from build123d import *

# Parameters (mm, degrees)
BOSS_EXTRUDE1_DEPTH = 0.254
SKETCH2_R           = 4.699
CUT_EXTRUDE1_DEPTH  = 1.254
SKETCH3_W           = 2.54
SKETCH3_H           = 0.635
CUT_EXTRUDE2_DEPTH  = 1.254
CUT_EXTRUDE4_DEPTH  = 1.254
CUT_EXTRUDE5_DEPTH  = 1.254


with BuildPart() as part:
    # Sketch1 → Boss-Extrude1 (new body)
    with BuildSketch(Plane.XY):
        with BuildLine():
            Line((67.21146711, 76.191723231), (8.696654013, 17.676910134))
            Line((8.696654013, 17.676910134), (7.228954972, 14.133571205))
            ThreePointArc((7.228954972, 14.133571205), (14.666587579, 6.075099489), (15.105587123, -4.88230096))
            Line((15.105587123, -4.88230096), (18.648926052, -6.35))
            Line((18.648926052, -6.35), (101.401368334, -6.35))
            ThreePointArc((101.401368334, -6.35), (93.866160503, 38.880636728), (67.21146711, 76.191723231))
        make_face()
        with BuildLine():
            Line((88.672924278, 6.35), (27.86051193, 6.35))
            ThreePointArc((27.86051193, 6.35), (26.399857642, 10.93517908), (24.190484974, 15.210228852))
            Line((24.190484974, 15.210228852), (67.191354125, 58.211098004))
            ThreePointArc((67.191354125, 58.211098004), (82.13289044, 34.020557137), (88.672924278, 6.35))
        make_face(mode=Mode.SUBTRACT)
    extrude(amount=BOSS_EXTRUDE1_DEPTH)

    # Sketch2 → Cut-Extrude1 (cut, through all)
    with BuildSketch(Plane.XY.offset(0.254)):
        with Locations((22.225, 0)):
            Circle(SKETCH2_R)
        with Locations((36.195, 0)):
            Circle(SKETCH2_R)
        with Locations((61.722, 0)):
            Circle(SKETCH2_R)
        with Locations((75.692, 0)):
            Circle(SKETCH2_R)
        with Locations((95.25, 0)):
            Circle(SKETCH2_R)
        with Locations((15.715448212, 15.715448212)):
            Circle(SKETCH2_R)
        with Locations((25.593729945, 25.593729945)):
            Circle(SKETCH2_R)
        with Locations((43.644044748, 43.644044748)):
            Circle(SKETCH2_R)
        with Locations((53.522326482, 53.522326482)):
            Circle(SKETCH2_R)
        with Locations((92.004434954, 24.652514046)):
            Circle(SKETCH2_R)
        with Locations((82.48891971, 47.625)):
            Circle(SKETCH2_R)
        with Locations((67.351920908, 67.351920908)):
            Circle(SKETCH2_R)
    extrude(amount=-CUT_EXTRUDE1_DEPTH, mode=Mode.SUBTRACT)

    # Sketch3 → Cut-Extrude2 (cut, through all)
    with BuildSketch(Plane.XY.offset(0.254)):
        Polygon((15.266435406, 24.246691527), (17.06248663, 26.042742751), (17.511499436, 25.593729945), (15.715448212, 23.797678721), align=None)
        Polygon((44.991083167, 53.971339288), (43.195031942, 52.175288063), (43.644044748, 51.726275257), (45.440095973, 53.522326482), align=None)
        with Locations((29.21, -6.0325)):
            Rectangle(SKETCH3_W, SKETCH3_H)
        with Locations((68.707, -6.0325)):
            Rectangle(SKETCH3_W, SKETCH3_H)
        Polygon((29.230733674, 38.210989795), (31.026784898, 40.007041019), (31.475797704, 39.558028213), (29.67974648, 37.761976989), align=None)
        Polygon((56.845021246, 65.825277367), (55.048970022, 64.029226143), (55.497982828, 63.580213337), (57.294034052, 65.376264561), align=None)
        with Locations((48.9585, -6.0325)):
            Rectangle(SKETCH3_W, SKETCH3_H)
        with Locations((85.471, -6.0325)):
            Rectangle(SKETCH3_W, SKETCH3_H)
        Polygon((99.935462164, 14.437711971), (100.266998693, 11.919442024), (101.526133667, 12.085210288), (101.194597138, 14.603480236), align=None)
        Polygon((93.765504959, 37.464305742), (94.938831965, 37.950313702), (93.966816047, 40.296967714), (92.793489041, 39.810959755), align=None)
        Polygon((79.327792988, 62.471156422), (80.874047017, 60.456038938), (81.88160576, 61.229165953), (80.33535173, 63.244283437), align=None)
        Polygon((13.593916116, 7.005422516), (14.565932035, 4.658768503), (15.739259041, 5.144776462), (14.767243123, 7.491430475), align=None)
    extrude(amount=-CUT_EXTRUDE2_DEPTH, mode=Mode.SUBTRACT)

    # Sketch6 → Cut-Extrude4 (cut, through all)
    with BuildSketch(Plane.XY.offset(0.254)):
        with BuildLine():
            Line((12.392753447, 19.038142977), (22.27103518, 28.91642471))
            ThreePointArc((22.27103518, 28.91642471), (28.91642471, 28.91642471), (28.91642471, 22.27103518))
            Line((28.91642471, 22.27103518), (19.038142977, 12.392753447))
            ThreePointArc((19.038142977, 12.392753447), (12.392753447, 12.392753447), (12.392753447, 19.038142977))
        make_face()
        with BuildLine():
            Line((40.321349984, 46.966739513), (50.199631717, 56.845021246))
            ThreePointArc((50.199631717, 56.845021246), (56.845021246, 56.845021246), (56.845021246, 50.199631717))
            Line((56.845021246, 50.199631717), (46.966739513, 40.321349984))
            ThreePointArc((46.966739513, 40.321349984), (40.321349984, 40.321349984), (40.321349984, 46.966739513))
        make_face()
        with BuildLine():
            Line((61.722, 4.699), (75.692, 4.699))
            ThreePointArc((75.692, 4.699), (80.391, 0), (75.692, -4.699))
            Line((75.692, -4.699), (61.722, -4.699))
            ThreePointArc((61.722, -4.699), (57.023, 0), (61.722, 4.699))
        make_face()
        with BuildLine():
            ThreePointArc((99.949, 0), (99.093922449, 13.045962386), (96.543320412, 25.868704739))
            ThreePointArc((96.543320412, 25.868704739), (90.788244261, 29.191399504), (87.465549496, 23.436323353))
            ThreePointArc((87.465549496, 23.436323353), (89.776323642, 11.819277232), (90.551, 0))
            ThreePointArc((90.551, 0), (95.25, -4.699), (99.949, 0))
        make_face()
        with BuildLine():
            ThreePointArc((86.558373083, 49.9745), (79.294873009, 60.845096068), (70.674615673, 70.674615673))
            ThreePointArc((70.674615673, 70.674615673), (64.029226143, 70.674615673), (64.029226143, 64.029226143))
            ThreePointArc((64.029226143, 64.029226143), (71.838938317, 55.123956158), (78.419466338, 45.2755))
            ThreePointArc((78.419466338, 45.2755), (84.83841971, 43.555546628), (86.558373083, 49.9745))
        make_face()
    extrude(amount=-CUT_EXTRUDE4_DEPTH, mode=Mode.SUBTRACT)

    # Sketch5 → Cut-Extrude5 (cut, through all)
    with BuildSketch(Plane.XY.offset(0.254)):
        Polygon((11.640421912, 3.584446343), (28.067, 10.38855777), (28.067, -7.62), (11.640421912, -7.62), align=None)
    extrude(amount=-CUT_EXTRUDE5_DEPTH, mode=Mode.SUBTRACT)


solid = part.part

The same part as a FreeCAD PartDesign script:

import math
import FreeCAD as App
import Part
import Sketcher

V = App.Vector
Q = App.Units.Quantity


def add_polygon(sketch, points):
    """Adds a closed chain of lines whose ends are joined by coincident constraints."""
    first, n = sketch.GeometryCount, len(points)
    for a, b in zip(points, points[1:] + points[:1]):
        sketch.addGeometry(Part.LineSegment(App.Vector(*a, 0), App.Vector(*b, 0)), False)
    for i in range(n):
        sketch.addConstraint(Sketcher.Constraint("Coincident", first + i, 2, first + (i + 1) % n, 1))

doc = App.newDocument("Part")
body = doc.addObject("PartDesign::Body", "Body")

sketch1 = body.newObject("Sketcher::SketchObject", "Sketch")
sketch1.AttachmentSupport = (doc.getObject("XY_Plane"), [""])
sketch1.MapMode = "FlatFace"
sketch1.addGeometry([
    Part.LineSegment(V(67.2, 76.2, 0), V(8.7, 17.7, 0)),
    Part.LineSegment(V(8.7, 17.7, 0), V(7.2, 14.1, 0)),
    Part.ArcOfCircle(Part.Circle(V(0, 0, 0), V(0, 0, 1), 15.9), math.radians(-18), math.radians(63)),
    Part.LineSegment(V(15.1, -4.9, 0), V(18.6, -6.3, 0)),
    Part.LineSegment(V(18.6, -6.3, 0), V(101.4, -6.3, 0)),
    Part.ArcOfCircle(Part.Circle(V(0, 0, 0), V(0, 0, 1), 101.6), math.radians(-4), math.radians(49)),
    Part.ArcOfCircle(Part.Circle(V(0, 0, 0), V(0, 0, 1), 88.9), math.radians(4), math.radians(41)),
    Part.LineSegment(V(88.7, 6.3, 0), V(27.9, 6.3, 0)),
    Part.ArcOfCircle(Part.Circle(V(0, 0, 0), V(0, 0, 1), 28.6), math.radians(12.84), math.radians(32.16)),
    Part.LineSegment(V(24.2, 15.2, 0), V(67.2, 58.2, 0)),
], False)
sketch1.addConstraint([
    Sketcher.Constraint("Coincident", 0, 2, 1, 1),
    Sketcher.Constraint("Coincident", 1, 2, 2, 2),
    Sketcher.Constraint("Coincident", 2, 1, 3, 1),
    Sketcher.Constraint("Coincident", 3, 2, 4, 1),
    Sketcher.Constraint("Coincident", 4, 2, 5, 1),
    Sketcher.Constraint("Coincident", 5, 2, 0, 1),
    Sketcher.Constraint("Coincident", 6, 1, 7, 1),
    Sketcher.Constraint("Coincident", 7, 2, 8, 1),
    Sketcher.Constraint("Coincident", 8, 2, 9, 1),
    Sketcher.Constraint("Coincident", 9, 2, 6, 2),
    Sketcher.Constraint("Horizontal", 4),
    Sketcher.Constraint("Horizontal", 7),
    Sketcher.Constraint("Coincident", 2, 3, -1, 1),
    Sketcher.Constraint("Coincident", 5, 3, -1, 1),
    Sketcher.Constraint("Coincident", 6, 3, -1, 1),
    Sketcher.Constraint("Coincident", 8, 3, -1, 1),
    Sketcher.Constraint("Perpendicular", 1, 3),
    Sketcher.Constraint("Parallel", 0, 9),
    Sketcher.Constraint("Equal", 1, 3),
    Sketcher.Constraint("Radius", 5, Q("4 in")),
    Sketcher.Constraint("Radius", 6, Q("3.5 in")),
    Sketcher.Constraint("Angle", 0, Q("-135 deg")),
    Sketcher.Constraint("Radius", 2, Q("0.625 in")),
    Sketcher.Constraint("Radius", 8, Q("1.125 in")),
    Sketcher.Constraint("Angle", 1, Q("-112.5 deg")),
    Sketcher.Constraint("DistanceY", 4, 2, 6, 1, Q("0.5 in")),
    Sketcher.Constraint("DistanceY", 3, 2, -1, 1, Q("0.25 in")),
    Sketcher.Constraint("DistanceY", 2, 1, -1, 1, 4.882301),
    Sketcher.Constraint("DistanceY", -1, 1, 9, 2, 58.211098),
    Sketcher.Constraint("DistanceX", 5, 2, 4, 2, 34.189901),
])
pad1 = body.newObject("PartDesign::Pad", "Pad")
pad1.Profile = sketch1
pad1.Length = Q("0.01 in")

sketch2 = body.newObject("Sketcher::SketchObject", "Sketch001")
sketch2.AttachmentSupport = (doc.getObject("XY_Plane"), [""])
sketch2.MapMode = "FlatFace"
sketch2.AttachmentOffset = App.Placement(V(0, 0, 0.01 * 25.4), App.Rotation())
sketch2.addGeometry([
    Part.Circle(V(22.2, 0, 0), V(0, 0, 1), 4.7),
    Part.Circle(V(36.2, 0, 0), V(0, 0, 1), 4.7),
    Part.Circle(V(61.7, 0, 0), V(0, 0, 1), 4.7),
    Part.Circle(V(75.7, 0, 0), V(0, 0, 1), 4.7),
    Part.Circle(V(95.2, 0, 0), V(0, 0, 1), 4.7),
    Part.Circle(V(15.7, 15.7, 0), V(0, 0, 1), 4.7),
    Part.Circle(V(25.6, 25.6, 0), V(0, 0, 1), 4.7),
    Part.Circle(V(43.6, 43.6, 0), V(0, 0, 1), 4.7),
    Part.Circle(V(53.5, 53.5, 0), V(0, 0, 1), 4.7),
    Part.Circle(V(92, 24.7, 0), V(0, 0, 1), 4.7),
    Part.Circle(V(82.5, 47.6, 0), V(0, 0, 1), 4.7),
    Part.Circle(V(67.4, 67.4, 0), V(0, 0, 1), 4.7),
], False)
sketch2.addConstraint([
    Sketcher.Constraint("Equal", 0, 1),
    Sketcher.Constraint("Equal", 1, 2),
    Sketcher.Constraint("Equal", 2, 3),
    Sketcher.Constraint("Equal", 3, 4),
    Sketcher.Constraint("Equal", 4, 5),
    Sketcher.Constraint("Equal", 5, 6),
    Sketcher.Constraint("Equal", 6, 7),
    Sketcher.Constraint("Equal", 7, 8),
    Sketcher.Constraint("Equal", 8, 9),
    Sketcher.Constraint("Equal", 9, 10),
    Sketcher.Constraint("Equal", 10, 11),
    Sketcher.Constraint("PointOnObject", 0, 3, -1),
    Sketcher.Constraint("PointOnObject", 1, 3, -1),
    Sketcher.Constraint("PointOnObject", 2, 3, -1),
    Sketcher.Constraint("PointOnObject", 3, 3, -1),
    Sketcher.Constraint("PointOnObject", 4, 3, -1),
    Sketcher.Constraint("Diameter", 0, Q("0.37 in")),
    Sketcher.Constraint("DistanceX", -1, 1, 2, 3, Q("2.43 in")),
    Sketcher.Constraint("DistanceX", -1, 1, 3, 3, Q("2.98 in")),
    Sketcher.Constraint("DistanceX", -1, 1, 4, 3, Q("3.75 in")),
    Sketcher.Constraint("DistanceX", 0, 3, 1, 3, Q("0.55 in")),
    Sketcher.Constraint("DistanceX", -1, 1, 0, 3, Q("0.875 in")),
    Sketcher.Constraint("DistanceY", -1, 1, 10, 3, Q("1.875 in")),
    Sketcher.Constraint("DistanceX", 11, 3, 10, 3, 15.136999),
    Sketcher.Constraint("DistanceX", -1, 1, 5, 3, 15.715448),
    Sketcher.Constraint("DistanceY", -1, 1, 5, 3, 15.715448),
    Sketcher.Constraint("DistanceX", -1, 1, 6, 3, 25.59373),
    Sketcher.Constraint("DistanceY", -1, 1, 6, 3, 25.59373),
    Sketcher.Constraint("DistanceX", -1, 1, 10, 3, 82.48892),
    Sketcher.Constraint("DistanceY", -1, 1, 11, 3, 67.351921),
    Sketcher.Constraint("DistanceX", 7, 3, 8, 3, 9.878282),
    Sketcher.Constraint("DistanceY", 7, 3, 8, 3, 9.878282),
    Sketcher.Constraint("DistanceX", 5, 3, 8, 3, 37.806878),
    Sketcher.Constraint("DistanceY", 5, 3, 8, 3, 37.806878),
    Sketcher.Constraint("DistanceX", 8, 3, 9, 3, 38.482108),
    Sketcher.Constraint("DistanceY", 9, 3, 7, 3, 18.991531),
])
pocket1 = body.newObject("PartDesign::Pocket", "Pocket")
pocket1.Profile = sketch2
pocket1.Type = "ThroughAll"

sketch3 = body.newObject("Sketcher::SketchObject", "Sketch002")
sketch3.AttachmentSupport = (doc.getObject("XY_Plane"), [""])
sketch3.MapMode = "FlatFace"
sketch3.AttachmentOffset = App.Placement(V(0, 0, 0.01 * 25.4), App.Rotation())
add_polygon(sketch3, [(17.1, 26), (15.3, 24.2), (15.7, 23.8), (17.5, 25.6)])
add_polygon(sketch3, [(45, 54), (43.2, 52.2), (43.6, 51.7), (45.4, 53.5)])
add_polygon(sketch3, [(27.9, -5.7), (27.9, -6.3), (30.5, -6.3), (30.5, -5.7)])
add_polygon(sketch3, [(67.4, -5.7), (67.4, -6.3), (70, -6.3), (70, -5.7)])
add_polygon(sketch3, [(31, 40), (29.2, 38.2), (29.7, 37.8), (31.5, 39.6)])
add_polygon(sketch3, [(56.8, 65.8), (55, 64), (55.5, 63.6), (57.3, 65.4)])
add_polygon(sketch3, [(47.7, -5.7), (47.7, -6.3), (50.2, -6.3), (50.2, -5.7)])
add_polygon(sketch3, [(84.2, -5.7), (84.2, -6.3), (86.7, -6.3), (86.7, -5.7)])
add_polygon(sketch3, [(99.9, 14.4), (100.3, 11.9), (101.5, 12.1), (101.2, 14.6)])
add_polygon(sketch3, [(93.8, 37.5), (94.9, 38), (94, 40.3), (92.8, 39.8)])
add_polygon(sketch3, [(79.3, 62.5), (80.9, 60.5), (81.9, 61.2), (80.3, 63.2)])
add_polygon(sketch3, [(13.6, 7), (14.6, 4.7), (15.7, 5.1), (14.8, 7.5)])
sketch3.addConstraint([
    Sketcher.Constraint("Vertical", 8),
    Sketcher.Constraint("Horizontal", 9),
    Sketcher.Constraint("Vertical", 10),
    Sketcher.Constraint("Horizontal", 11),
    Sketcher.Constraint("Vertical", 12),
    Sketcher.Constraint("Horizontal", 13),
    Sketcher.Constraint("Vertical", 14),
    Sketcher.Constraint("Horizontal", 15),
    Sketcher.Constraint("Vertical", 24),
    Sketcher.Constraint("Horizontal", 25),
    Sketcher.Constraint("Vertical", 26),
    Sketcher.Constraint("Horizontal", 27),
    Sketcher.Constraint("Vertical", 28),
    Sketcher.Constraint("Horizontal", 29),
    Sketcher.Constraint("Vertical", 30),
    Sketcher.Constraint("Horizontal", 31),
    Sketcher.Constraint("Perpendicular", 0, 1),
    Sketcher.Constraint("Perpendicular", 1, 2),
    Sketcher.Constraint("Perpendicular", 2, 3),
    Sketcher.Constraint("Perpendicular", 3, 4),
    Sketcher.Constraint("Perpendicular", 4, 5),
    Sketcher.Constraint("Perpendicular", 5, 6),
    Sketcher.Constraint("Perpendicular", 6, 7),
    Sketcher.Constraint("Perpendicular", 7, 16),
    Sketcher.Constraint("Perpendicular", 16, 17),
    Sketcher.Constraint("Perpendicular", 17, 18),
    Sketcher.Constraint("Perpendicular", 18, 19),
    Sketcher.Constraint("Perpendicular", 19, 20),
    Sketcher.Constraint("Perpendicular", 20, 21),
    Sketcher.Constraint("Perpendicular", 21, 22),
    Sketcher.Constraint("Perpendicular", 22, 23),
    Sketcher.Constraint("Perpendicular", 32, 33),
    Sketcher.Constraint("Perpendicular", 33, 34),
    Sketcher.Constraint("Perpendicular", 34, 35),
    Sketcher.Constraint("Perpendicular", 36, 37),
    Sketcher.Constraint("Perpendicular", 37, 38),
    Sketcher.Constraint("Perpendicular", 38, 39),
    Sketcher.Constraint("Perpendicular", 40, 41),
    Sketcher.Constraint("Perpendicular", 41, 42),
    Sketcher.Constraint("Perpendicular", 42, 43),
    Sketcher.Constraint("Parallel", 39, 44),
    Sketcher.Constraint("Perpendicular", 44, 45),
    Sketcher.Constraint("Perpendicular", 45, 46),
    Sketcher.Constraint("Perpendicular", 46, 47),
    Sketcher.Constraint("Horizontal", 9, 2, 12, 2),
    Sketcher.Constraint("Horizontal", 11, 2, 14, 2),
    Sketcher.Constraint("Horizontal", 13, 2, 24, 2),
    Sketcher.Constraint("Horizontal", 15, 2, 26, 2),
    Sketcher.Constraint("Horizontal", 25, 2, 28, 2),
    Sketcher.Constraint("Horizontal", 27, 2, 30, 2),
    Sketcher.Constraint("Equal", 11, 13),
    Sketcher.Constraint("Equal", 15, 25),
    Sketcher.Constraint("Equal", 27, 29),
    Sketcher.Constraint("Equal", 2, 4),
    Sketcher.Constraint("Equal", 3, 5),
    Sketcher.Constraint("Equal", 6, 16),
    Sketcher.Constraint("Equal", 7, 17),
    Sketcher.Constraint("Equal", 18, 20),
    Sketcher.Constraint("Equal", 19, 21),
    Sketcher.Constraint("Equal", 22, 32),
    Sketcher.Constraint("Equal", 35, 36),
    Sketcher.Constraint("Equal", 34, 37),
    Sketcher.Constraint("Equal", 39, 40),
    Sketcher.Constraint("Equal", 38, 41),
    Sketcher.Constraint("Equal", 42, 44),
    Sketcher.Constraint("Equal", 43, 45),
    Sketcher.Constraint("DistanceX", 9, 1, 9, 2, Q("0.1 in")),
    Sketcher.Constraint("Angle", 0, Q("-135 deg")),
    Sketcher.Constraint("Distance", 0, Q("0.1 in")),
    Sketcher.Constraint("DistanceX", -1, 1, 8, 2, Q("1.1 in")),
    Sketcher.Constraint("Angle", 32, Q("-82.5 deg")),
    Sketcher.Constraint("Angle", 36, Q("22.5 deg")),
    Sketcher.Constraint("Angle", 40, Q("-52.5 deg")),
    Sketcher.Constraint("Distance", 33, Q("0.05 in")),
    Sketcher.Constraint("DistanceY", 8, 2, 8, 1, Q("0.025 in")),
    Sketcher.Constraint("DistanceY", 8, 2, -1, 1, Q("0.25 in")),
    Sketcher.Constraint("DistanceX", 13, 2, 28, 2, Q("0.56 in")),
    Sketcher.Constraint("Distance", 1, Q("0.025 in")),
    Sketcher.Constraint("DistanceX", -1, 1, 12, 2, Q("2.655 in")),
    Sketcher.Constraint("DistanceX", -1, 1, 24, 2, Q("1.8775 in")),
    Sketcher.Constraint("DistanceX", -1, 1, 2, 2, 17.511499),
    Sketcher.Constraint("DistanceX", -1, 1, 32, 2, 100.266999),
    Sketcher.Constraint("DistanceX", 16, 2, 4, 2, 13.964298),
    Sketcher.Constraint("DistanceY", 16, 2, 4, 2, 13.964298),
    Sketcher.Constraint("DistanceX", 0, 2, 16, 2, 13.964298),
    Sketcher.Constraint("DistanceY", 0, 2, 16, 2, 13.964298),
    Sketcher.Constraint("DistanceY", 6, 2, 20, 2, 10.5069),
    Sketcher.Constraint("DistanceX", 7, 2, 21, 2, 10.5069),
    Sketcher.Constraint("DistanceY", 35, 2, 36, 2, 23.512602),
    Sketcher.Constraint("DistanceX", 36, 2, 33, 2, 6.587302),
    Sketcher.Constraint("DistanceY", 37, 2, 41, 2, 20.932198),
    Sketcher.Constraint("DistanceY", 41, 2, 22, 2, 4.147099),
    Sketcher.Constraint("DistanceY", 46, 2, 2, 2, 18.102299),
    Sketcher.Constraint("DistanceY", -1, 1, 0, 2, 24.246692),
    Sketcher.Constraint("DistanceX", -1, 1, 42, 2, 80.335352),
    Sketcher.Constraint("DistanceX", -1, 1, 45, 2, 15.739259),
])
pocket2 = body.newObject("PartDesign::Pocket", "Pocket001")
pocket2.Profile = sketch3
pocket2.Type = "ThroughAll"

sketch4 = body.newObject("Sketcher::SketchObject", "Sketch003")
sketch4.AttachmentSupport = (doc.getObject("XY_Plane"), [""])
sketch4.MapMode = "FlatFace"
sketch4.AttachmentOffset = App.Placement(V(0, 0, 0.01 * 25.4), App.Rotation())
sketch4.addGeometry([
    Part.LineSegment(V(22.3, 28.9, 0), V(12.4, 19, 0)),
    Part.ArcOfCircle(Part.Circle(V(15.7, 15.7, 0), V(0, 0, 1), 4.7), math.radians(135), math.radians(315)),
    Part.LineSegment(V(19, 12.4, 0), V(28.9, 22.3, 0)),
    Part.ArcOfCircle(Part.Circle(V(25.6, 25.6, 0), V(0, 0, 1), 4.7), math.radians(-45), math.radians(135)),
    Part.LineSegment(V(50.2, 56.8, 0), V(40.3, 47, 0)),
    Part.ArcOfCircle(Part.Circle(V(43.6, 43.6, 0), V(0, 0, 1), 4.7), math.radians(135), math.radians(315)),
    Part.LineSegment(V(47, 40.3, 0), V(56.8, 50.2, 0)),
    Part.ArcOfCircle(Part.Circle(V(53.5, 53.5, 0), V(0, 0, 1), 4.7), math.radians(-45), math.radians(135)),
    Part.LineSegment(V(75.7, 4.7, 0), V(61.7, 4.7, 0)),
    Part.ArcOfCircle(Part.Circle(V(61.7, 0, 0), V(0, 0, 1), 4.7), math.radians(90), math.radians(270)),
    Part.LineSegment(V(61.7, -4.7, 0), V(75.7, -4.7, 0)),
    Part.ArcOfCircle(Part.Circle(V(75.7, 0, 0), V(0, 0, 1), 4.7), math.radians(-90), math.radians(90)),
    Part.ArcOfCircle(Part.Circle(V(0, 0, 0), V(0, 0, 1), 99.9), math.radians(0), math.radians(15)),
    Part.ArcOfCircle(Part.Circle(V(92, 24.7, 0), V(0, 0, 1), 4.7), math.radians(15), math.radians(195)),
    Part.ArcOfCircle(Part.Circle(V(0, 0, 0), V(0, 0, 1), 90.6), math.radians(0), math.radians(15)),
    Part.ArcOfCircle(Part.Circle(V(95.2, 0, 0), V(0, 0, 1), 4.7), math.radians(180), math.radians(360)),
    Part.ArcOfCircle(Part.Circle(V(0, 0, 0), V(0, 0, 1), 99.9), math.radians(30), math.radians(45)),
    Part.ArcOfCircle(Part.Circle(V(67.4, 67.4, 0), V(0, 0, 1), 4.7), math.radians(45), math.radians(225)),
    Part.ArcOfCircle(Part.Circle(V(0, 0, 0), V(0, 0, 1), 90.6), math.radians(30), math.radians(45)),
    Part.ArcOfCircle(Part.Circle(V(82.5, 47.6, 0), V(0, 0, 1), 4.7), math.radians(-150), math.radians(30)),
], False)
sketch4.addConstraint([
    Sketcher.Constraint("Tangent", 0, 2, 1, 1),
    Sketcher.Constraint("Tangent", 1, 2, 2, 1),
    Sketcher.Constraint("Tangent", 2, 2, 3, 1),
    Sketcher.Constraint("Tangent", 3, 2, 0, 1),
    Sketcher.Constraint("Tangent", 4, 2, 5, 1),
    Sketcher.Constraint("Tangent", 5, 2, 6, 1),
    Sketcher.Constraint("Tangent", 6, 2, 7, 1),
    Sketcher.Constraint("Tangent", 7, 2, 4, 1),
    Sketcher.Constraint("Tangent", 8, 2, 9, 1),
    Sketcher.Constraint("Tangent", 9, 2, 10, 1),
    Sketcher.Constraint("Tangent", 10, 2, 11, 1),
    Sketcher.Constraint("Tangent", 11, 2, 8, 1),
    Sketcher.Constraint("Tangent", 12, 2, 13, 1),
    Sketcher.Constraint("Tangent", 13, 2, 14, 2),
    Sketcher.Constraint("Tangent", 14, 1, 15, 1),
    Sketcher.Constraint("Tangent", 15, 2, 12, 1),
    Sketcher.Constraint("Tangent", 16, 2, 17, 1),
    Sketcher.Constraint("Tangent", 17, 2, 18, 2),
    Sketcher.Constraint("Tangent", 18, 1, 19, 1),
    Sketcher.Constraint("Tangent", 19, 2, 16, 1),
    Sketcher.Constraint("Horizontal", 8),
    Sketcher.Constraint("Horizontal", 10),
    Sketcher.Constraint("Coincident", 12, 3, -1, 1),
    Sketcher.Constraint("Coincident", 14, 3, -1, 1),
    Sketcher.Constraint("Coincident", 16, 3, -1, 1),
    Sketcher.Constraint("Coincident", 18, 3, -1, 1),
    Sketcher.Constraint("Equal", 1, 3),
    Sketcher.Constraint("Equal", 3, 5),
    Sketcher.Constraint("Equal", 5, 7),
    Sketcher.Constraint("Equal", 7, 9),
    Sketcher.Constraint("Equal", 11, 13),
    Sketcher.Constraint("Equal", 12, 16),
    Sketcher.Constraint("Equal", 15, 17),
    Sketcher.Constraint("PointOnObject", 9, 3, -1),
    Sketcher.Constraint("PointOnObject", 15, 3, -1),
    Sketcher.Constraint("Parallel", 2, 4),
    Sketcher.Constraint("Equal", 2, 4),
    Sketcher.Constraint("Angle", 0, Q("-135 deg")),
    Sketcher.Constraint("Radius", 1, Q("0.185 in")),
    Sketcher.Constraint("Radius", 12, Q("3.935 in")),
    Sketcher.Constraint("DistanceX", 8, 2, 8, 1, Q("0.55 in")),
    Sketcher.Constraint("Distance", 0, Q("0.55 in")),
    Sketcher.Constraint("DistanceX", -1, 1, 9, 3, Q("2.43 in")),
    Sketcher.Constraint("DistanceY", -1, 1, 19, 3, Q("1.875 in")),
    Sketcher.Constraint("DistanceX", 17, 3, 19, 3, 15.136999),
    Sketcher.Constraint("DistanceX", 6, 2, 17, 3, 10.5069),
    Sketcher.Constraint("DistanceX", 19, 3, 12, 2, 14.054401),
    Sketcher.Constraint("DistanceY", 7, 3, 17, 2, 10.5069),
    Sketcher.Constraint("DistanceX", -1, 1, 1, 3, 15.715448),
    Sketcher.Constraint("DistanceY", -1, 1, 1, 3, 15.715448),
])
pocket3 = body.newObject("PartDesign::Pocket", "Pocket002")
pocket3.Profile = sketch4
pocket3.Type = "ThroughAll"

sketch5 = body.newObject("Sketcher::SketchObject", "Sketch004")
sketch5.AttachmentSupport = (doc.getObject("XY_Plane"), [""])
sketch5.MapMode = "FlatFace"
sketch5.AttachmentOffset = App.Placement(V(0, 0, 0.01 * 25.4), App.Rotation())
add_polygon(sketch5, [(28, 10), (12, 4), (12, -8), (28, -8)])
sketch5.addConstraint([
    Sketcher.Constraint("Vertical", 1),
    Sketcher.Constraint("Horizontal", 2),
    Sketcher.Constraint("Vertical", 3),
    Sketcher.Constraint("Distance", 0, Q("0.7 in")),
    Sketcher.Constraint("DistanceY", 1, 2, -1, 1, Q("0.3 in")),
    Sketcher.Constraint("Angle", 0, Q("-157.5 deg")),
    Sketcher.Constraint("DistanceX", -1, 1, 2, 2, Q("1.105 in")),
    Sketcher.Constraint("DistanceY", 1, 2, 1, 1, 11.204446),
])
pocket4 = body.newObject("PartDesign::Pocket", "Pocket003")
pocket4.Profile = sketch5
pocket4.Type = "ThroughAll"

doc.recompute()
